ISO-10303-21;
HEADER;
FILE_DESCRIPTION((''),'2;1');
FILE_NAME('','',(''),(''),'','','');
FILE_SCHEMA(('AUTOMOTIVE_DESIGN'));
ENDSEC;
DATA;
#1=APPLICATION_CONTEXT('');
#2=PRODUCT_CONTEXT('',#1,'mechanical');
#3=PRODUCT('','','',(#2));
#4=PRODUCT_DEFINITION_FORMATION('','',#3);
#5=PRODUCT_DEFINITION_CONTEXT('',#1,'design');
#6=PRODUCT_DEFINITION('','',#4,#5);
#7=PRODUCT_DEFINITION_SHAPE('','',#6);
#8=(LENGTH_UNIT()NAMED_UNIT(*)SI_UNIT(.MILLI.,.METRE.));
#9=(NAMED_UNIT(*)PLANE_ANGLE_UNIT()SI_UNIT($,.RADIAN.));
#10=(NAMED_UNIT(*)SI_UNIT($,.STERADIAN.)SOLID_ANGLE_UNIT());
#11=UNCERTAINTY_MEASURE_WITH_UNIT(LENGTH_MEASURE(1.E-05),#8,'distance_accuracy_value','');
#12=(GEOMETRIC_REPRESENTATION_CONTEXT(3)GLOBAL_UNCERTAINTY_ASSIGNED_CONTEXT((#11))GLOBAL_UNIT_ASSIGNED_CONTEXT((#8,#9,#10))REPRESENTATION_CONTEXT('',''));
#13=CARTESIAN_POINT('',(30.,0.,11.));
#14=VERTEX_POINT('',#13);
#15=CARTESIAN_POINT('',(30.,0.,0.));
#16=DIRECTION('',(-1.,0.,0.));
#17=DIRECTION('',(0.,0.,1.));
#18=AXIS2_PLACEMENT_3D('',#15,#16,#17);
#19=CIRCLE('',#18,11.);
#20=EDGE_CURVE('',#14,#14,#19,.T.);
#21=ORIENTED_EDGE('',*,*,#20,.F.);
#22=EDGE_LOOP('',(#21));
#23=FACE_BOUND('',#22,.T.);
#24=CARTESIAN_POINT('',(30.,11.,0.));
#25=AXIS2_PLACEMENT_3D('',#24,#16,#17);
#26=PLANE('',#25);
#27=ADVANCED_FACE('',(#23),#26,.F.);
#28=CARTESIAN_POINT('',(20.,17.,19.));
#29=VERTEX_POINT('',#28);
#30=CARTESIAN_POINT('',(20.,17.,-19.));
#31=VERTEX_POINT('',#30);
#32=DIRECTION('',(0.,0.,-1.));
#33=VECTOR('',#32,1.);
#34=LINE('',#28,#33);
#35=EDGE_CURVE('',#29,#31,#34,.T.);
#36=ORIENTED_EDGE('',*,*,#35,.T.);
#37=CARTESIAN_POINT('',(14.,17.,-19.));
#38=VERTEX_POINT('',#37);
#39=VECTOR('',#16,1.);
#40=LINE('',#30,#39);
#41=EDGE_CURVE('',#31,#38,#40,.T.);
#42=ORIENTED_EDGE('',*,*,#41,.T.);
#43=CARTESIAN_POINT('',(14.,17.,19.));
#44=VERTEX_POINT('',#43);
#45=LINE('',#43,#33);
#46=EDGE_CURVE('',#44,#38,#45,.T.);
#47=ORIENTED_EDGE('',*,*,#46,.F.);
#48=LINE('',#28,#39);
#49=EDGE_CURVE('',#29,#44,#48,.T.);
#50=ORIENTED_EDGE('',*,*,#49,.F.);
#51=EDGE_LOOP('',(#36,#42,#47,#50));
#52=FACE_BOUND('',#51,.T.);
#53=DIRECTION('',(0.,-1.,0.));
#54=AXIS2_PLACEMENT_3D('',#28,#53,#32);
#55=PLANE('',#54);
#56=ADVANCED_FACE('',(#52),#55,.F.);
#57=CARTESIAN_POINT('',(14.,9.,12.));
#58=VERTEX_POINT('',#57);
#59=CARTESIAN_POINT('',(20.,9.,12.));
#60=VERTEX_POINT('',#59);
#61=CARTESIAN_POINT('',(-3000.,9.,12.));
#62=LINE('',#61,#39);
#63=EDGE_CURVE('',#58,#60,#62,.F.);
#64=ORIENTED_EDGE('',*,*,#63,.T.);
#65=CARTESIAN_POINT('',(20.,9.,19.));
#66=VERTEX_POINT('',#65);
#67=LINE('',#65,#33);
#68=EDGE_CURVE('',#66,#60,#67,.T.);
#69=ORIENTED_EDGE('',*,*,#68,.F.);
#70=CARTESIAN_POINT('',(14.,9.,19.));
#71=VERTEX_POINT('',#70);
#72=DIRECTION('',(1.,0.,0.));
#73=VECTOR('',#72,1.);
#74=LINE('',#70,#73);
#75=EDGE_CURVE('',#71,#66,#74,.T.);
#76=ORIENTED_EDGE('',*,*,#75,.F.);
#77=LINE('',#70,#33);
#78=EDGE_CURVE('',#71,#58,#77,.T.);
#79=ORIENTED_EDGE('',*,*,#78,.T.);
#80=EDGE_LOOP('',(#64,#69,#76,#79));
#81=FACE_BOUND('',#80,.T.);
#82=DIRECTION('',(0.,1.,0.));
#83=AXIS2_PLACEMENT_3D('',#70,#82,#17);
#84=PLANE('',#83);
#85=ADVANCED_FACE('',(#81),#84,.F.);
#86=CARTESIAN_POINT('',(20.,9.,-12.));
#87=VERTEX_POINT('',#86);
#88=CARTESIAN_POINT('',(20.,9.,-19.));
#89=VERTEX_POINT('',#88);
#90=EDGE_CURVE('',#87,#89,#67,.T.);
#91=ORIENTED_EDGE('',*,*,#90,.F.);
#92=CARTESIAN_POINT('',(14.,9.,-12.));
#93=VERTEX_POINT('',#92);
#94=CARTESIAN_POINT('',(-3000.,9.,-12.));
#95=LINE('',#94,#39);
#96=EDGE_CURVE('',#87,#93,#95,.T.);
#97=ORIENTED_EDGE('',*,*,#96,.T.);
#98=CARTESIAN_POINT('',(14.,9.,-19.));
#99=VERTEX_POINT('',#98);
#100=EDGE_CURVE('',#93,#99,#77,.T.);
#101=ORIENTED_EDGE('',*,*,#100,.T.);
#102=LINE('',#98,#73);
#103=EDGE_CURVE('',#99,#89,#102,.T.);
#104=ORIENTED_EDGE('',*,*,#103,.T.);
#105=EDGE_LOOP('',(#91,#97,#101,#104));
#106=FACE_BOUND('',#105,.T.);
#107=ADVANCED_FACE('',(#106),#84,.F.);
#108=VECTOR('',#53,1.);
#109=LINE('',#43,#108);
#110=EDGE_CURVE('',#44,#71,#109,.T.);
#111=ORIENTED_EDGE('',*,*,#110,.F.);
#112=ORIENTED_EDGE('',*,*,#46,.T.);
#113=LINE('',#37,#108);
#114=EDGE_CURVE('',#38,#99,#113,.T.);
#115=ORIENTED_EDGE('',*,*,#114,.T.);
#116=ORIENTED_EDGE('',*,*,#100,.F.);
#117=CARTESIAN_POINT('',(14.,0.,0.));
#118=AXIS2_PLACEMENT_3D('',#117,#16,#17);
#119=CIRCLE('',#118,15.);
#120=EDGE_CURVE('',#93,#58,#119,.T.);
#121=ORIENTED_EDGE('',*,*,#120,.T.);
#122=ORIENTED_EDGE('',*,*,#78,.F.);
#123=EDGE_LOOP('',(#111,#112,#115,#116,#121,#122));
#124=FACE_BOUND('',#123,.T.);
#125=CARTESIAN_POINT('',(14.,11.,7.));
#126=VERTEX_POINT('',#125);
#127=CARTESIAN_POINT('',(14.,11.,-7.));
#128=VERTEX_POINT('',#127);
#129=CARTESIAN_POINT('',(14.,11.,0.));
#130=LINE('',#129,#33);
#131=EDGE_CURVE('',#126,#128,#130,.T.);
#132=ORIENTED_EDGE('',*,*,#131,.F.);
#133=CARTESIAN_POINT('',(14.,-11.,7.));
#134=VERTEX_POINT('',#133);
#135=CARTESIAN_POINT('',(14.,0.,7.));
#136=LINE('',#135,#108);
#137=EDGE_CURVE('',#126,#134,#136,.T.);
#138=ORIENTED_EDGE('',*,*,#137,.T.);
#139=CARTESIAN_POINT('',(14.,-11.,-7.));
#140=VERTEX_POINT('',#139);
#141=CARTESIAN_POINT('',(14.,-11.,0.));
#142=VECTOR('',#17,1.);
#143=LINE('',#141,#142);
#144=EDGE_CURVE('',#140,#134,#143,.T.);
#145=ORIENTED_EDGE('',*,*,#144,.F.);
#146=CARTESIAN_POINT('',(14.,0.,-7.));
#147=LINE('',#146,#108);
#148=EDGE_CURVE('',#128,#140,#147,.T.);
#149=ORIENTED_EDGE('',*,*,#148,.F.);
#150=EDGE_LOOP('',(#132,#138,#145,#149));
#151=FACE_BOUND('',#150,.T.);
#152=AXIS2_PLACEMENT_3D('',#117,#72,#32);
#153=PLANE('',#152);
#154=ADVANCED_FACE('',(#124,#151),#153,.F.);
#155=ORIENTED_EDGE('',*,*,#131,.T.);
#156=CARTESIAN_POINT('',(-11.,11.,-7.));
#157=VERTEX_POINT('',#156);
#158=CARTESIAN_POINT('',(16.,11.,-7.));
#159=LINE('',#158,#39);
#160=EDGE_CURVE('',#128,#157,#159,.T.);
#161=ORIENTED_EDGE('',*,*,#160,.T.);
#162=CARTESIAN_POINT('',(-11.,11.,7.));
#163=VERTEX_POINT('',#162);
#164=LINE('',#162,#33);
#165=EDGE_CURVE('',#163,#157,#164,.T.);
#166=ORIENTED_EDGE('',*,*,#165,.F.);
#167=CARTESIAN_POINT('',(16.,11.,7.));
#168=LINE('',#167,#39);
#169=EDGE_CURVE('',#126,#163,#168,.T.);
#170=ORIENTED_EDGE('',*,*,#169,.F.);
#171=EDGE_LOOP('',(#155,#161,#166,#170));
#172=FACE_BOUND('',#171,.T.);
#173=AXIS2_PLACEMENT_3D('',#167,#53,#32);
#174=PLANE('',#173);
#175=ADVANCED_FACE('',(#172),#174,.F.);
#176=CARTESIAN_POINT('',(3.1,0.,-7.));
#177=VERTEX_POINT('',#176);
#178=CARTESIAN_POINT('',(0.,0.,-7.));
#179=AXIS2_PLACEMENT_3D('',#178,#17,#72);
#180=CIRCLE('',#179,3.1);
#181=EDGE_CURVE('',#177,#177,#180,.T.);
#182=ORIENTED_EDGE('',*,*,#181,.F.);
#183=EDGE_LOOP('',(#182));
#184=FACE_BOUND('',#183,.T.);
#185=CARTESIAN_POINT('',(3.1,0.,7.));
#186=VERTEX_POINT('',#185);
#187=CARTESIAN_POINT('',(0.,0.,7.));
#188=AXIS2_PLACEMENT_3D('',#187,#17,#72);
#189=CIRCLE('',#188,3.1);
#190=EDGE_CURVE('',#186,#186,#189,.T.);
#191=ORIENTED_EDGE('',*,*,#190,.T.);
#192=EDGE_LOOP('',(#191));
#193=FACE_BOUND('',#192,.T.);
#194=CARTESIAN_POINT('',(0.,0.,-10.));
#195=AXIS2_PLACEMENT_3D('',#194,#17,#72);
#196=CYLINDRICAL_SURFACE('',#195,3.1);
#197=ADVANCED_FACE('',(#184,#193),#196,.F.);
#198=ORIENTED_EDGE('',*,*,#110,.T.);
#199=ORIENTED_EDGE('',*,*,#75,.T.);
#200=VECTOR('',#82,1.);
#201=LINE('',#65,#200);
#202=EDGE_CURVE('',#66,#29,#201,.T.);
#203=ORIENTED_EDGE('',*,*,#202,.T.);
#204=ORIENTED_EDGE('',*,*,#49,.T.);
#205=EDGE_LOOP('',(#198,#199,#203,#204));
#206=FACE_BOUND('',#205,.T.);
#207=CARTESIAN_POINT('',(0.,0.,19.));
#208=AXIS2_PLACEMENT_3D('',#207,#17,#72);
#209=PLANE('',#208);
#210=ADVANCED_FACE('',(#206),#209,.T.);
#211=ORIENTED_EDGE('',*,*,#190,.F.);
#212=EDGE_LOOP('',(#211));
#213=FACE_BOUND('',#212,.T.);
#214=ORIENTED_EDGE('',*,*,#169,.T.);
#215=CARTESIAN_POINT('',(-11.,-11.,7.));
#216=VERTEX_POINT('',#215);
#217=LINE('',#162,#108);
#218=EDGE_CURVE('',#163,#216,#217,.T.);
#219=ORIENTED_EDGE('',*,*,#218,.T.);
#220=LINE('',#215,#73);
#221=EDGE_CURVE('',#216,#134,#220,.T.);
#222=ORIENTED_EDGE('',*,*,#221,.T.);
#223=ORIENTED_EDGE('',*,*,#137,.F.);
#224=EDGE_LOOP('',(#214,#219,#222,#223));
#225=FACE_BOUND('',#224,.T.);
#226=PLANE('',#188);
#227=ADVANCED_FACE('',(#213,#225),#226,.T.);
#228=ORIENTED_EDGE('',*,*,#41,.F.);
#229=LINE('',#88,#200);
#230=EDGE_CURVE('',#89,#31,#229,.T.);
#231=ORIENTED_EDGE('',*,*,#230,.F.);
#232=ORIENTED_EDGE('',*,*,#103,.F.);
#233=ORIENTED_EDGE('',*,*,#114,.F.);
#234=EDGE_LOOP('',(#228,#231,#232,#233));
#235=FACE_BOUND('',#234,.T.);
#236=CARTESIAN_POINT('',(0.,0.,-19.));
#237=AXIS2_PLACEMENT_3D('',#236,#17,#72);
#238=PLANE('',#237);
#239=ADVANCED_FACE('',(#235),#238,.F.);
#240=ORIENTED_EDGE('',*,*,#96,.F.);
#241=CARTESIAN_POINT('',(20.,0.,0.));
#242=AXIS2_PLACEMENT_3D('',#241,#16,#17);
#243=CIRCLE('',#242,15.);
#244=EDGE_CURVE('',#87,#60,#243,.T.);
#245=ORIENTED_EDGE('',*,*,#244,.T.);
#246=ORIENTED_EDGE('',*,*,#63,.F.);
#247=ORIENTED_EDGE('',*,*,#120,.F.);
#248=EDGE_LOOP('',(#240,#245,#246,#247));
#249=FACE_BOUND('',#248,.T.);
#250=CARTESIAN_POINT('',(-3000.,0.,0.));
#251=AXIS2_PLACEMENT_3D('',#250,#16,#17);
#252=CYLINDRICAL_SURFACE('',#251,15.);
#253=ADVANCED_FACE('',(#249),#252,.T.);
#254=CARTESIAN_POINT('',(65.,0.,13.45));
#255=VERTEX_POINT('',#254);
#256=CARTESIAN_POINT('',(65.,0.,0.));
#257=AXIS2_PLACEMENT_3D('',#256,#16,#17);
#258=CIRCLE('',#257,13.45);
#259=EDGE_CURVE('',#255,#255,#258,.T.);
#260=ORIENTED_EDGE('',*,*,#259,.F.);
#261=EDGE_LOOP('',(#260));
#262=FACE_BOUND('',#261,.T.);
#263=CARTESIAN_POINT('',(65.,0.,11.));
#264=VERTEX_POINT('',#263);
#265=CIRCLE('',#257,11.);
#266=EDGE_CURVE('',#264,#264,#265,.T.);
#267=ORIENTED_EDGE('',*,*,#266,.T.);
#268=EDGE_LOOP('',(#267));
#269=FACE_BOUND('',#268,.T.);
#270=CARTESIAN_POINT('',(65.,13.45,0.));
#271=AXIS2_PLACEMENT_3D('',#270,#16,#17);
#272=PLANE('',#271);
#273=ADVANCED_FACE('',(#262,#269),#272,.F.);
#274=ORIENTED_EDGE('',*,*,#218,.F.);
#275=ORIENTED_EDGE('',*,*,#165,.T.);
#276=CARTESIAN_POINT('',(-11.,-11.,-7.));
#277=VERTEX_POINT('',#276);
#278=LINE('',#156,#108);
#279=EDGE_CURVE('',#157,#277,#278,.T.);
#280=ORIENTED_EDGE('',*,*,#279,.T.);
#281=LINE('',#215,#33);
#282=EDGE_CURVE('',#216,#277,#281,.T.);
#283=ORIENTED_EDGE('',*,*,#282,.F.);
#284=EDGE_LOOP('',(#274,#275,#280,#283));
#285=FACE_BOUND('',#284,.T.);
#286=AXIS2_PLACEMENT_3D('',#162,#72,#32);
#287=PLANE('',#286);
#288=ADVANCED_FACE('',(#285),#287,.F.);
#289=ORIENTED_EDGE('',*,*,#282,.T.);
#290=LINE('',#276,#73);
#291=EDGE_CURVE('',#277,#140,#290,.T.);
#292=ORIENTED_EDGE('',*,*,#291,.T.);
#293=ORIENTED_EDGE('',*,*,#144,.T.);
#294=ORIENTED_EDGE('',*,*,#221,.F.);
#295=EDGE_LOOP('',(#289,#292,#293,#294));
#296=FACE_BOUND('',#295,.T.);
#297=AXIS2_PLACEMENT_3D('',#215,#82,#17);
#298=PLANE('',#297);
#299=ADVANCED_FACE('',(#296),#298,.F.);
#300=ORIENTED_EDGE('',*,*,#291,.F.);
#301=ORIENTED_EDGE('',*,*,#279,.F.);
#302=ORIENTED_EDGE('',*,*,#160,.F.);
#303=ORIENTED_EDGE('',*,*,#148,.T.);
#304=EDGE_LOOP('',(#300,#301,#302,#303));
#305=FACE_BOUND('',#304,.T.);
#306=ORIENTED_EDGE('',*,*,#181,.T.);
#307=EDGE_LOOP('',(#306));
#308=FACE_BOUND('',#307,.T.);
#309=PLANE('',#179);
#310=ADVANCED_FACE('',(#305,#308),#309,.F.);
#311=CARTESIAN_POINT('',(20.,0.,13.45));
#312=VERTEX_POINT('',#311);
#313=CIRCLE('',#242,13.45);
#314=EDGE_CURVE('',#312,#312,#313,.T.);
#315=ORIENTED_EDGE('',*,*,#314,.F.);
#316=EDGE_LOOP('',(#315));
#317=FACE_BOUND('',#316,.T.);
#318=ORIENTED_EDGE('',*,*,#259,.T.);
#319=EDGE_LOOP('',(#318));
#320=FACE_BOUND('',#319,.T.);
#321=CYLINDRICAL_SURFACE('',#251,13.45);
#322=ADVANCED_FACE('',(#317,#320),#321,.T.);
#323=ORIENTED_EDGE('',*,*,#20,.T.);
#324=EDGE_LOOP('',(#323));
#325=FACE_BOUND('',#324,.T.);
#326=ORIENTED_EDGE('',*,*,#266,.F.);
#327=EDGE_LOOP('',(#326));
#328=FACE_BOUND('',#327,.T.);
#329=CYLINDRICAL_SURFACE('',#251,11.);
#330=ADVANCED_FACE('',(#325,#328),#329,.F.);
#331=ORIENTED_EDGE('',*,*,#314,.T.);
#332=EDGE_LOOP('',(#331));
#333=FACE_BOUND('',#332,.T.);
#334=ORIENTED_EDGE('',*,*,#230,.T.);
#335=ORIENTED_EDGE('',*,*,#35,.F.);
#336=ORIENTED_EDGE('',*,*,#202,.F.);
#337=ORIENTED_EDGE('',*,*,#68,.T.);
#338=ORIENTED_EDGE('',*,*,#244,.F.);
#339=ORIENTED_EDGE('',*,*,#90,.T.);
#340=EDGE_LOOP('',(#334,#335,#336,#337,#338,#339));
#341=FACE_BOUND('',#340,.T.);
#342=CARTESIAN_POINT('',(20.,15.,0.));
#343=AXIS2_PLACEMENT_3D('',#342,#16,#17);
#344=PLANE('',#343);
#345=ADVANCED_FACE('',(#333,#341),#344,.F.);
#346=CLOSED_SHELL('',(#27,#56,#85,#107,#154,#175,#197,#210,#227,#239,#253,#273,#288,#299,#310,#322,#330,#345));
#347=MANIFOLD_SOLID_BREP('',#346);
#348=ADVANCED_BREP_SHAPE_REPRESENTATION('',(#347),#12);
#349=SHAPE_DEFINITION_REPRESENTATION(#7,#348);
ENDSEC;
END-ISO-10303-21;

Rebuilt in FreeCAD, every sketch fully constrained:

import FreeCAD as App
import Part
import Sketcher
Q = App.Units.Quantity


def add_polygon(sketch, points):
    """Adds a closed chain of lines whose ends are joined by coincident constraints."""
    first, n = sketch.GeometryCount, len(points)
    for a, b in zip(points, points[1:] + points[:1]):
        sketch.addGeometry(Part.LineSegment(App.Vector(*a, 0), App.Vector(*b, 0)), False)
    for i in range(n):
        sketch.addConstraint(Sketcher.Constraint("Coincident", first + i, 2, first + (i + 1) % n, 1))

doc = App.newDocument("Part")
body = doc.addObject("PartDesign::Body", "Body")

sketch1 = body.newObject("Sketcher::SketchObject", "Sketch")
sketch1.AttachmentSupport = (doc.getObject("XY_Plane"), [""])
sketch1.MapMode = "FlatFace"
add_polygon(sketch1, [(14, 15), (14, 0), (30, 0), (30, 11), (65, 11), (65, 13.4), (20, 13.4), (20, 15)])
sketch1.addConstraint(Sketcher.Constraint("Vertical", 0))
sketch1.addConstraint(Sketcher.Constraint("Horizontal", 1))
sketch1.addConstraint(Sketcher.Constraint("Vertical", 2))
sketch1.addConstraint(Sketcher.Constraint("Horizontal", 3))
sketch1.addConstraint(Sketcher.Constraint("Vertical", 4))
sketch1.addConstraint(Sketcher.Constraint("Horizontal", 5))
sketch1.addConstraint(Sketcher.Constraint("Vertical", 6))
sketch1.addConstraint(Sketcher.Constraint("Horizontal", 7))
sketch1.addConstraint(Sketcher.Constraint("PointOnObject", 0, 2, -1))
sketch1.addConstraint(Sketcher.Constraint("DistanceX", 1, 1, 1, 2, Q("16 mm")))
sketch1.addConstraint(Sketcher.Constraint("DistanceX", 3, 1, 3, 2, Q("35 mm")))
sketch1.addConstraint(Sketcher.Constraint("DistanceX", 5, 2, 5, 1, Q("45 mm")))
sketch1.addConstraint(Sketcher.Constraint("DistanceY", 0, 2, 0, 1, Q("15 mm")))
sketch1.addConstraint(Sketcher.Constraint("DistanceY", 2, 1, 2, 2, Q("11 mm")))
sketch1.addConstraint(Sketcher.Constraint("DistanceX", -1, 1, 0, 2, Q("14 mm")))
sketch1.addConstraint(Sketcher.Constraint("DistanceY", 4, 1, 4, 2, Q("2.45 mm")))
revolution = body.newObject("PartDesign::Revolution", "Revolution")
revolution.Profile = sketch1
revolution.ReferenceAxis = (sketch1, ["H_Axis"])
revolution.Angle = 360

sketch2 = body.newObject("Sketcher::SketchObject", "Sketch001")
sketch2.AttachmentSupport = (doc.getObject("XY_Plane"), [""])
sketch2.MapMode = "FlatFace"
add_polygon(sketch2, [(-11, 11), (-11, -11), (16, -11), (16, 11)])
sketch2.addConstraint(Sketcher.Constraint("Vertical", 0))
sketch2.addConstraint(Sketcher.Constraint("Horizontal", 1))
sketch2.addConstraint(Sketcher.Constraint("Vertical", 2))
sketch2.addConstraint(Sketcher.Constraint("Horizontal", 3))
sketch2.addConstraint(Sketcher.Constraint("DistanceX", 1, 1, 1, 2, Q("27 mm")))
sketch2.addConstraint(Sketcher.Constraint("DistanceY", 0, 2, 0, 1, Q("22 mm")))
sketch2.addConstraint(Sketcher.Constraint("DistanceX", 0, 2, -1, 1, Q("11 mm")))
sketch2.addConstraint(Sketcher.Constraint("DistanceY", 0, 2, -1, 1, Q("11 mm")))
pad1 = body.newObject("PartDesign::Pad", "Pad")
pad1.Profile = sketch2
pad1.Length = 14
pad1.Midplane = True

sketch3 = body.newObject("Sketcher::SketchObject", "Sketch002")
sketch3.AttachmentSupport = (doc.getObject("XY_Plane"), [""])
sketch3.MapMode = "FlatFace"
add_polygon(sketch3, [(14, 17), (14, 9), (20, 9), (20, 17)])
sketch3.addConstraint(Sketcher.Constraint("Vertical", 0))
sketch3.addConstraint(Sketcher.Constraint("Horizontal", 1))
sketch3.addConstraint(Sketcher.Constraint("Vertical", 2))
sketch3.addConstraint(Sketcher.Constraint("Horizontal", 3))
sketch3.addConstraint(Sketcher.Constraint("DistanceX", 1, 1, 1, 2, Q("6 mm")))
sketch3.addConstraint(Sketcher.Constraint("DistanceY", 0, 2, 0, 1, Q("8 mm")))
sketch3.addConstraint(Sketcher.Constraint("DistanceX", -1, 1, 0, 2, Q("14 mm")))
sketch3.addConstraint(Sketcher.Constraint("DistanceY", -1, 1, 0, 2, Q("9 mm")))
pad2 = body.newObject("PartDesign::Pad", "Pad001")
pad2.Profile = sketch3
pad2.Length = 38
pad2.Midplane = True

sketch4 = body.newObject("Sketcher::SketchObject", "Sketch003")
sketch4.AttachmentSupport = (doc.getObject("XY_Plane"), [""])
sketch4.MapMode = "FlatFace"
sketch4.addGeometry(Part.Circle(App.Vector(0, 0, 0), App.Vector(0, 0, 1), 3.1), False)
sketch4.addConstraint(Sketcher.Constraint("Coincident", 0, 3, -1, 1))
sketch4.addConstraint(Sketcher.Constraint("Diameter", 0, Q("6.2 mm")))
pocket1 = body.newObject("PartDesign::Pocket", "Pocket")
pocket1.Profile = sketch4
pocket1.Length = 20
pocket1.Midplane = True

doc.recompute()
